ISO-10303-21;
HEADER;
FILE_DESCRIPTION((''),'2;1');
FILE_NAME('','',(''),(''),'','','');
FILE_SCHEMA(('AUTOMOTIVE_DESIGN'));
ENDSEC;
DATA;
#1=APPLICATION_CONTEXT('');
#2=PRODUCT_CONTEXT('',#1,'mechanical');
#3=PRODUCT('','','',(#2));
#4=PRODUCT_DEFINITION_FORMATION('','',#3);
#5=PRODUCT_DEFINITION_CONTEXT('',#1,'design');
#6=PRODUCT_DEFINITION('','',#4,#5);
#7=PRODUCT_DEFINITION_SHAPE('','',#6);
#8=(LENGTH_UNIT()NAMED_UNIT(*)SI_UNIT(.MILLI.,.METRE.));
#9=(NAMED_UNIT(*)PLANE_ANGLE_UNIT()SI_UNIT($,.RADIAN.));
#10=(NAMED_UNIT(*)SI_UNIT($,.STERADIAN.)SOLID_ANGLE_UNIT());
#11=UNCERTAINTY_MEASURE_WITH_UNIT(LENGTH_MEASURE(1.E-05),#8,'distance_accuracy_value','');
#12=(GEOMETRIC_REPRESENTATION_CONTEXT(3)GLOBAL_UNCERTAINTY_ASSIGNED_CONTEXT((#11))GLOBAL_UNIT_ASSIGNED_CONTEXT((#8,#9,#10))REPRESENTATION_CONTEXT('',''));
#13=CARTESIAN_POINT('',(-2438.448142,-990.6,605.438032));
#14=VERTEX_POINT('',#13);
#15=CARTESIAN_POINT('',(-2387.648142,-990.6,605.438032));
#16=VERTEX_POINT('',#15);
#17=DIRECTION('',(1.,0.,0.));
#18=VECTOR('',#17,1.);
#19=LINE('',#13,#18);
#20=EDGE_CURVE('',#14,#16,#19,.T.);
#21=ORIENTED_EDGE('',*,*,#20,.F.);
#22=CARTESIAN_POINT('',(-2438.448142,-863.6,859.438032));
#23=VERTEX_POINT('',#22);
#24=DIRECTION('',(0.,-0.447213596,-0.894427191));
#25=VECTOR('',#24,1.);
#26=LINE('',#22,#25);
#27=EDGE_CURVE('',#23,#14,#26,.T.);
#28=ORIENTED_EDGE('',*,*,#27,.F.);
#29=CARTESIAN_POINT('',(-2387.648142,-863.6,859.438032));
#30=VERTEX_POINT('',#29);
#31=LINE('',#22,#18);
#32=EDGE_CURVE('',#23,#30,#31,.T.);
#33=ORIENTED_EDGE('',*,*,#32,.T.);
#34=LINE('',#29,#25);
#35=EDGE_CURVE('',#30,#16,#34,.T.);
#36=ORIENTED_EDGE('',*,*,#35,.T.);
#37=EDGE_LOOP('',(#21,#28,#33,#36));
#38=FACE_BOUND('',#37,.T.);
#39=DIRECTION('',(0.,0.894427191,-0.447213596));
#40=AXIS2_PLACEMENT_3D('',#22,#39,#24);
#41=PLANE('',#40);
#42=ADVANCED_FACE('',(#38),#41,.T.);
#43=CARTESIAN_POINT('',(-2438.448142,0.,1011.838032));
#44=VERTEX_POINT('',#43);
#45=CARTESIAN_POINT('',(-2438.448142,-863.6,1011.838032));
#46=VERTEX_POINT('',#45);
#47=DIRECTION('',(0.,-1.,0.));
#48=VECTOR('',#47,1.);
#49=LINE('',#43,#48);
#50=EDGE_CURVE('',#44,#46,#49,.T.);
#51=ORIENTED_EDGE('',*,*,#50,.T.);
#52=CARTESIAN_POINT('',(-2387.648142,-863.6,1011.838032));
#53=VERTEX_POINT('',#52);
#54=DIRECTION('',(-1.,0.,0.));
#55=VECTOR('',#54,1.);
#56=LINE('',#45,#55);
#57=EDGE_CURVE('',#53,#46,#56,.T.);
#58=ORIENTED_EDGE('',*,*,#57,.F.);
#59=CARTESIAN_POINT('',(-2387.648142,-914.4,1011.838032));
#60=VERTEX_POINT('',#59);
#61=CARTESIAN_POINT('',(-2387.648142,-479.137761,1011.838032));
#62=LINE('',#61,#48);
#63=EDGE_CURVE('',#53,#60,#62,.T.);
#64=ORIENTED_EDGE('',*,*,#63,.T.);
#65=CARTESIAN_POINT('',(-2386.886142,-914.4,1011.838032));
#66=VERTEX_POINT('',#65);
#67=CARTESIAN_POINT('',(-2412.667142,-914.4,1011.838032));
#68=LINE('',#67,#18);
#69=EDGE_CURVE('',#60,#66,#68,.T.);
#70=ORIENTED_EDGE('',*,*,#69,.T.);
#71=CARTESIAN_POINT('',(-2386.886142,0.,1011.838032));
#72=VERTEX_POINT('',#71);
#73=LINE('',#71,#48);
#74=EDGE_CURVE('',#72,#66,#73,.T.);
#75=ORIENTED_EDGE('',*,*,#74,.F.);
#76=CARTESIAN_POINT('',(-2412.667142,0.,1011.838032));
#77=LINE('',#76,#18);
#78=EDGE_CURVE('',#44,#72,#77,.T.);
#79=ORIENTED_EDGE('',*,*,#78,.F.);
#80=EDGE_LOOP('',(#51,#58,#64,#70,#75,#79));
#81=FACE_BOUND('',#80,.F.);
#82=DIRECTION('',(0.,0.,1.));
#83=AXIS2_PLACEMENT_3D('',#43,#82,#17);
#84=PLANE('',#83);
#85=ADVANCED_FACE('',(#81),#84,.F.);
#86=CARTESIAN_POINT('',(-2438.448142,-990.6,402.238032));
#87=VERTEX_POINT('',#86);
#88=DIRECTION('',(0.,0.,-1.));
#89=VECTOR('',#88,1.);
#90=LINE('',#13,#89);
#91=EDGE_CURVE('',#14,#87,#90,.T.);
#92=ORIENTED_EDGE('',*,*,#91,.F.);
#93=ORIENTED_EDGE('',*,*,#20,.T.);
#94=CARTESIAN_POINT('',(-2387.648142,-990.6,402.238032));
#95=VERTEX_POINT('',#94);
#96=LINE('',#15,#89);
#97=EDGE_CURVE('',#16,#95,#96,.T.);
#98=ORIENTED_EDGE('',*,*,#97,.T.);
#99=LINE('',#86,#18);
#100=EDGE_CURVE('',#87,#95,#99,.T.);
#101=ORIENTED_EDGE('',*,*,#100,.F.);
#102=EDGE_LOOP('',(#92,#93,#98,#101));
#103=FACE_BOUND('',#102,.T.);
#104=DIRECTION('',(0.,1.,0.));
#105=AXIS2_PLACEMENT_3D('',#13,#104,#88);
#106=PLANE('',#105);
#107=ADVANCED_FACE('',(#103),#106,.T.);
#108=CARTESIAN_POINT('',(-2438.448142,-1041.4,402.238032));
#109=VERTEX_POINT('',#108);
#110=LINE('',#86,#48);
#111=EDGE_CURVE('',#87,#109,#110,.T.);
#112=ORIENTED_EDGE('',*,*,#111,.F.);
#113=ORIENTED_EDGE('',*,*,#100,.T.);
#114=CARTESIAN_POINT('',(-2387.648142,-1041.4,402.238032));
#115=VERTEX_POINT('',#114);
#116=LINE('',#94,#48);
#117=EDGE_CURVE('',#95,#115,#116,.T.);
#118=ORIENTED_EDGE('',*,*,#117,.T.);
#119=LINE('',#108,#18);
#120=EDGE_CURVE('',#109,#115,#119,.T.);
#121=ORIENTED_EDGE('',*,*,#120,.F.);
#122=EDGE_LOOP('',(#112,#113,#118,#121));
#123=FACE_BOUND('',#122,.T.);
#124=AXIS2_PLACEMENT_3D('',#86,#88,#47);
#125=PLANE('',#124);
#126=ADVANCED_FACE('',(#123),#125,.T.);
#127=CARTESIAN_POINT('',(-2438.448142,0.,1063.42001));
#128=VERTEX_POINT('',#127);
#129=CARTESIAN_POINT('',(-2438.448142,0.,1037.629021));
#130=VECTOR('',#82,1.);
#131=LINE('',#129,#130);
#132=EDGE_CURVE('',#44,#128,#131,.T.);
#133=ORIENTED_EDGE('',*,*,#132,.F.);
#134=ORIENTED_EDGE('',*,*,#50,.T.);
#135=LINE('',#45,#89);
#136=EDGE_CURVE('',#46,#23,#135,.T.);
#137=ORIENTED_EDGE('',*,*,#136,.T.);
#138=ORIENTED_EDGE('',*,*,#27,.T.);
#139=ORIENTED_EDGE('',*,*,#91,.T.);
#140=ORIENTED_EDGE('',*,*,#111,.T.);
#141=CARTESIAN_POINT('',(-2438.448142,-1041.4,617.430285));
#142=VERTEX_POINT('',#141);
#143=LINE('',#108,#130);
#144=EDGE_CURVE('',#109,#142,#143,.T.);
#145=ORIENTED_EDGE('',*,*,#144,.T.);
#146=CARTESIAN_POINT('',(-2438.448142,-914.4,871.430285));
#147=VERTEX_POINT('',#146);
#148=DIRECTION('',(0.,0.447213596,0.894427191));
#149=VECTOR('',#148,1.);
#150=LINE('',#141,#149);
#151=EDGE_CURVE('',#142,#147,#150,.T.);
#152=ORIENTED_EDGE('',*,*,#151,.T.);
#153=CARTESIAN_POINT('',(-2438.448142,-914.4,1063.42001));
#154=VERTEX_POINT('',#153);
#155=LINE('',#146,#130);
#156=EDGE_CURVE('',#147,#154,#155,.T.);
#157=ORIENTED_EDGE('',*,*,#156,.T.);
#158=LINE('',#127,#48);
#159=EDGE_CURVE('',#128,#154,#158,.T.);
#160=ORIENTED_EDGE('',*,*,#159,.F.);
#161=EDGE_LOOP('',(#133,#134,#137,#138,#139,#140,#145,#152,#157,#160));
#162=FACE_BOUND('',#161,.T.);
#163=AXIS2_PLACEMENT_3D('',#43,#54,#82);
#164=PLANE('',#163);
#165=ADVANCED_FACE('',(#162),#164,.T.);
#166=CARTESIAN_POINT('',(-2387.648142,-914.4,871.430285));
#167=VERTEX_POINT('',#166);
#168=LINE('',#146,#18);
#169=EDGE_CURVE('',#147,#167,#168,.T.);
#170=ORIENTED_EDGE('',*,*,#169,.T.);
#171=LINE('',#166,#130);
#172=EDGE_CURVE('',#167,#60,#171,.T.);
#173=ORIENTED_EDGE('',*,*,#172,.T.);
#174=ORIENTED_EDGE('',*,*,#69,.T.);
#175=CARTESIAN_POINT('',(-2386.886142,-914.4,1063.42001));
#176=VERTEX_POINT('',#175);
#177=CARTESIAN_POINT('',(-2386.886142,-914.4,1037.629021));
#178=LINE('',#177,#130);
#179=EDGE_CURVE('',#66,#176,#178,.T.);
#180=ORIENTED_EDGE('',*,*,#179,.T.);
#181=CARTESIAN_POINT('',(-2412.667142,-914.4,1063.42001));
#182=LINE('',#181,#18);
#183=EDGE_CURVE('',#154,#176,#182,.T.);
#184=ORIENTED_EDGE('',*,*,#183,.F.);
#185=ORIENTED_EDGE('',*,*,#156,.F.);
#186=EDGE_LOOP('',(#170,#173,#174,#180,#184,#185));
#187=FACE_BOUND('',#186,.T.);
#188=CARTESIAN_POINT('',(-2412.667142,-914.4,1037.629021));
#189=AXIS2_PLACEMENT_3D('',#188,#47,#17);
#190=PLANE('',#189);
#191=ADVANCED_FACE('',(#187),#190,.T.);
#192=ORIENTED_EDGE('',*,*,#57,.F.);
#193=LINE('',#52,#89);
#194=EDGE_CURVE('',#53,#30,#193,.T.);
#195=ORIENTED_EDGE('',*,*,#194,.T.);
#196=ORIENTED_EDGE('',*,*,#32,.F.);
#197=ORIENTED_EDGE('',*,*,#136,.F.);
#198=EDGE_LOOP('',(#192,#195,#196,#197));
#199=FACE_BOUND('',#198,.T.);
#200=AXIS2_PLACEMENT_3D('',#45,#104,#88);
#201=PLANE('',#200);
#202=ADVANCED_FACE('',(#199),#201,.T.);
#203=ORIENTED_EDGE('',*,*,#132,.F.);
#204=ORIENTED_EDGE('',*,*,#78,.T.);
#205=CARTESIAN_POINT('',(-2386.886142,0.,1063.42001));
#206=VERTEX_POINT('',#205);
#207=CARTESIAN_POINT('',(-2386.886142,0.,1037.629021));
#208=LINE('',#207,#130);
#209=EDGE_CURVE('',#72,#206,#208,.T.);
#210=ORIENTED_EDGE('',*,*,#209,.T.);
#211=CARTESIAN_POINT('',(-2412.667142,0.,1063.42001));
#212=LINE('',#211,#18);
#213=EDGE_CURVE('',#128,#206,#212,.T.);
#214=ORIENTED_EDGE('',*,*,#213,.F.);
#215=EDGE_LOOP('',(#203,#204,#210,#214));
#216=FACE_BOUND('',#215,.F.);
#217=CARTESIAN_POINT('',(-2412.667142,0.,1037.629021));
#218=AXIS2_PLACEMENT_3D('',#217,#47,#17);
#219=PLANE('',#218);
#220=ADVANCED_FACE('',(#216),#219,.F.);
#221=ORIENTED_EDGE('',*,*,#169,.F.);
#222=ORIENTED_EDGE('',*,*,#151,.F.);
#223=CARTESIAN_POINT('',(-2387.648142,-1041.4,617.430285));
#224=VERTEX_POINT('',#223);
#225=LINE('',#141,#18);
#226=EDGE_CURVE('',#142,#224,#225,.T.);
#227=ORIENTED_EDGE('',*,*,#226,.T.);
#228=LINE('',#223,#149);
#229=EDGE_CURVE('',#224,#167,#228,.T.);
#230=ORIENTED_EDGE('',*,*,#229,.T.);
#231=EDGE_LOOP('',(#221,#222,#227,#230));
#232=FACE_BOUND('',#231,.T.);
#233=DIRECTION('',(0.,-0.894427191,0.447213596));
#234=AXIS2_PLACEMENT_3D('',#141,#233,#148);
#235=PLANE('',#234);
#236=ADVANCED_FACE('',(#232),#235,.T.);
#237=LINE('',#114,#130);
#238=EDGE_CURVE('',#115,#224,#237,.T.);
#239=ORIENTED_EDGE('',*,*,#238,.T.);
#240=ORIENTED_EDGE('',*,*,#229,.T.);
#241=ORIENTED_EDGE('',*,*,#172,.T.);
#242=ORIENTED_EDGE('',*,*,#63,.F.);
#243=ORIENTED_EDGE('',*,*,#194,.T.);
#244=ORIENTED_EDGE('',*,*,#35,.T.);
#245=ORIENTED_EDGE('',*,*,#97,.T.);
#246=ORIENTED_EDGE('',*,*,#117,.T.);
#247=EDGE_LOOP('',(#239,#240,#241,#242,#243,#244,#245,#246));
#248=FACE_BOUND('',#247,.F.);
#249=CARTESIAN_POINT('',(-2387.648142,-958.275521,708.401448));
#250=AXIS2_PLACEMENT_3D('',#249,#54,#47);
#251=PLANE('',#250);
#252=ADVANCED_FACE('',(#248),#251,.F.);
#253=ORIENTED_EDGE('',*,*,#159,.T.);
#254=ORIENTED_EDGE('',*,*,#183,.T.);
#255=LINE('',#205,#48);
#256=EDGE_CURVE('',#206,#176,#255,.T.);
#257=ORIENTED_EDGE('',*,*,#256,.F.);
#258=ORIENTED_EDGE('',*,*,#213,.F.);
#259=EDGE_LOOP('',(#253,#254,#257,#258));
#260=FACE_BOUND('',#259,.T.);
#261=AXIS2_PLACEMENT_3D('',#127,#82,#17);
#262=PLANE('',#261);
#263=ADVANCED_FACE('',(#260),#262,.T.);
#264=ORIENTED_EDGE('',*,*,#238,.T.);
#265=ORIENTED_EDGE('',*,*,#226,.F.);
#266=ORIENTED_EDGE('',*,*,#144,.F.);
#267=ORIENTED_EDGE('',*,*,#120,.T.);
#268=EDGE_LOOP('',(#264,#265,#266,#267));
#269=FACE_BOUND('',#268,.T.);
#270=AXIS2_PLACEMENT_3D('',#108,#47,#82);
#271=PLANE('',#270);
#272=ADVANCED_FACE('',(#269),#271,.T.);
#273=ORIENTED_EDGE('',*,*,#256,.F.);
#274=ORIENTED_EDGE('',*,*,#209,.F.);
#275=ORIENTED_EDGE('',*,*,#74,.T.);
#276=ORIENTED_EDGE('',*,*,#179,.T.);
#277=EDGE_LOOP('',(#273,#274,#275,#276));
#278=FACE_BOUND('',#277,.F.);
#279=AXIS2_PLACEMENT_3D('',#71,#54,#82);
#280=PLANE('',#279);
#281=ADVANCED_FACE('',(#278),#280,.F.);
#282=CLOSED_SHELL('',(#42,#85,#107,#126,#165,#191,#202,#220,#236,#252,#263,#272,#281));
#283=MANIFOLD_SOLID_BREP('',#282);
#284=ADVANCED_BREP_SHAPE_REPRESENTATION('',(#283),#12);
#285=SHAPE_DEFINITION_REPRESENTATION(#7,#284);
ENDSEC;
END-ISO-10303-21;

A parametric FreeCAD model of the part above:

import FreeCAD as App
import Part
import Sketcher

V = App.Vector
Q = App.Units.Quantity

doc = App.newDocument("Part")
body = doc.addObject("PartDesign::Body", "Body")

sketch1 = doc.addObject("Sketcher::SketchObject", "Sketch")
body.addObject(sketch1)
sketch1.AttachmentSupport = (doc.XZ_Plane, [""])
sketch1.MapMode = "FlatFace"
sketch1.addGeometry([
    Part.LineSegment(V(-2438.448142, 1063.42001, 0), V(-2438.448142, 1011.838032, 0)),
    Part.LineSegment(V(-2438.448142, 1011.838032, 0), V(-2386.886142, 1011.838032, 0)),
    Part.LineSegment(V(-2386.886142, 1011.838032, 0), V(-2386.886142, 1063.42001, 0)),
    Part.LineSegment(V(-2386.886142, 1063.42001, 0), V(-2438.448142, 1063.42001, 0)),
], False)
sketch1.addConstraint([
    Sketcher.Constraint("Coincident", 0, 2, 1, 1),
    Sketcher.Constraint("Coincident", 1, 2, 2, 1),
    Sketcher.Constraint("Coincident", 2, 2, 3, 1),
    Sketcher.Constraint("Coincident", 3, 2, 0, 1),
    Sketcher.Constraint("Vertical", 0),
    Sketcher.Constraint("Horizontal", 1),
    Sketcher.Constraint("Vertical", 2),
    Sketcher.Constraint("Horizontal", 3),
    Sketcher.Constraint("DistanceX", 1, 1, 1, 2, Q("2.03 in")),
    Sketcher.Constraint("DistanceY", 0, 2, 0, 1, 51.581979),
    Sketcher.Constraint("DistanceY", -1, 1, 0, 2, 1011.838032),
    Sketcher.Constraint("DistanceX", 1, 2, -1, 1, 2386.886142),
])
pad1 = doc.addObject("PartDesign::Pad", "Pad")
body.addObject(pad1)
pad1.Profile = sketch1
pad1.Length = Q("36 in")

sketch2 = doc.addObject("Sketcher::SketchObject", "Sketch001")
body.addObject(sketch2)
sketch2.AttachmentSupport = (doc.YZ_Plane, [""])
sketch2.MapMode = "FlatFace"
sketch2.AttachmentOffset = App.Placement(V(0, 0, -2438.448142), App.Rotation())
sketch2.addGeometry([
    Part.LineSegment(V(-914.4, 1011.838032, 0), V(-863.6, 1011.838032, 0)),
    Part.LineSegment(V(-863.6, 1011.838032, 0), V(-863.6, 859.438032, 0)),
    Part.LineSegment(V(-863.6, 859.438032, 0), V(-990.6, 605.438032, 0)),
    Part.LineSegment(V(-990.6, 605.438032, 0), V(-990.6, 402.238032, 0)),
    Part.LineSegment(V(-990.6, 402.238032, 0), V(-1041.4, 402.238032, 0)),
    Part.LineSegment(V(-1041.4, 402.238032, 0), V(-1041.4, 617.430285, 0)),
    Part.LineSegment(V(-1041.4, 617.430285, 0), V(-914.4, 871.430285, 0)),
    Part.LineSegment(V(-914.4, 871.430285, 0), V(-914.4, 1011.838032, 0)),
], False)
sketch2.addConstraint([
    Sketcher.Constraint("Coincident", 0, 2, 1, 1),
    Sketcher.Constraint("Coincident", 1, 2, 2, 1),
    Sketcher.Constraint("Coincident", 2, 2, 3, 1),
    Sketcher.Constraint("Coincident", 3, 2, 4, 1),
    Sketcher.Constraint("Coincident", 4, 2, 5, 1),
    Sketcher.Constraint("Coincident", 5, 2, 6, 1),
    Sketcher.Constraint("Coincident", 6, 2, 7, 1),
    Sketcher.Constraint("Coincident", 7, 2, 0, 1),
    Sketcher.Constraint("Horizontal", 0),
    Sketcher.Constraint("Vertical", 1),
    Sketcher.Constraint("Vertical", 3),
    Sketcher.Constraint("Horizontal", 4),
    Sketcher.Constraint("Vertical", 5),
    Sketcher.Constraint("Vertical", 7),
    Sketcher.Constraint("Parallel", 2, 6),
    Sketcher.Constraint("Equal", 0, 4),
    Sketcher.Constraint("DistanceX", 0, 1, 0, 2, Q("2 in")),
    Sketcher.Constraint("DistanceY", 1, 2, 1, 1, Q("6 in")),
    Sketcher.Constraint("DistanceY", 3, 2, 3, 1, Q("8 in")),
    Sketcher.Constraint("DistanceX", 0, 2, -1, 1, Q("34 in")),
    Sketcher.Constraint("DistanceX", 2, 2, -1, 1, Q("39 in")),
    Sketcher.Constraint("DistanceY", 2, 2, 1, 2, Q("10 in")),
    Sketcher.Constraint("DistanceY", 5, 1, 5, 2, 215.192253),
    Sketcher.Constraint("DistanceY", -1, 1, 0, 2, 1011.838032),
])
pad2 = doc.addObject("PartDesign::Pad", "Pad001")
body.addObject(pad2)
pad2.Profile = sketch2
pad2.Length = Q("2 in")

doc.recompute()
